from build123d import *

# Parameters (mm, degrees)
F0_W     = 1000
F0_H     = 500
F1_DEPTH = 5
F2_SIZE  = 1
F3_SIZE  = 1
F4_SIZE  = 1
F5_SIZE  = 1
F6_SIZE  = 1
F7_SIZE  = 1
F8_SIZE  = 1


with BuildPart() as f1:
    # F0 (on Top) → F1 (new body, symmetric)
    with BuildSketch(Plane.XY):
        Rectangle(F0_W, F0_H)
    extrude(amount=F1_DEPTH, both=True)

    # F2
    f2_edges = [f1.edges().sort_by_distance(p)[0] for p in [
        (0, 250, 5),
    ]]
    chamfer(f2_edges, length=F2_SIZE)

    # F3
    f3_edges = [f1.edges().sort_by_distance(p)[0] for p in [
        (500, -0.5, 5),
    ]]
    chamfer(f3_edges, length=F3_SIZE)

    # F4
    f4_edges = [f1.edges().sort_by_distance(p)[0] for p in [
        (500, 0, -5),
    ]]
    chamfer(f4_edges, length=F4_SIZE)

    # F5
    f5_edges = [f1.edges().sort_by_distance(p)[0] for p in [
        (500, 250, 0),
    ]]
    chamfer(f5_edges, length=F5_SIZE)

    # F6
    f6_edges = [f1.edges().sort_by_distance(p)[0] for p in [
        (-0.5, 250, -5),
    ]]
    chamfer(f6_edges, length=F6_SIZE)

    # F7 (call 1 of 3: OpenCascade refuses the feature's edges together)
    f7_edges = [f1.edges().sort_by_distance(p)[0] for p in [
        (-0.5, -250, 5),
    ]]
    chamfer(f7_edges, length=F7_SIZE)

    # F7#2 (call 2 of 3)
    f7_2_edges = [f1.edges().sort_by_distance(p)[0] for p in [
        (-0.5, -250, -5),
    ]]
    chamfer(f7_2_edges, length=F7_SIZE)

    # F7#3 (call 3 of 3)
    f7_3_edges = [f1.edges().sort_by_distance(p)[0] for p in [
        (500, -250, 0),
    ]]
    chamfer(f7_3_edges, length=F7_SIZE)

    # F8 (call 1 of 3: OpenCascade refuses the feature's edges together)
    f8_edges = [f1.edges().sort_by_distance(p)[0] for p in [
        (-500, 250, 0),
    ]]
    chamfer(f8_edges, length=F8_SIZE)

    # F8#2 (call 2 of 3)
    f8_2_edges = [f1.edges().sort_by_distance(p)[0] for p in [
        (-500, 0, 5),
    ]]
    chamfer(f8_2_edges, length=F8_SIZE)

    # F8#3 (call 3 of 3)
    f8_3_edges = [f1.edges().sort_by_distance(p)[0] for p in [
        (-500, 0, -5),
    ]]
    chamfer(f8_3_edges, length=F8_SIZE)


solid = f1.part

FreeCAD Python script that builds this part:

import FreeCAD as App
import Part
import Sketcher

V = App.Vector


def edges_at(feature, points):
    """Names of the edges that pass closest to the given points."""
    edges = feature.Shape.Edges
    near = lambda p: min(range(len(edges)), key=lambda i: edges[i].distToShape(Part.Vertex(*p))[0])
    return sorted({f"Edge{near(p) + 1}" for p in points})

doc = App.newDocument("Part")
body = doc.addObject("PartDesign::Body", "Body")

sketch1 = body.newObject("Sketcher::SketchObject", "Sketch")
sketch1.AttachmentSupport = (doc.getObject("XY_Plane"), [""])
sketch1.MapMode = "FlatFace"
sketch1.addGeometry([
    Part.LineSegment(V(-500, 250, 0), V(-500, -250, 0)),
    Part.LineSegment(V(-500, -250, 0), V(500, -250, 0)),
    Part.LineSegment(V(500, -250, 0), V(500, 250, 0)),
    Part.LineSegment(V(500, 250, 0), V(-500, 250, 0)),
], False)
sketch1.addConstraint([
    Sketcher.Constraint("Coincident", 0, 2, 1, 1),
    Sketcher.Constraint("Coincident", 1, 2, 2, 1),
    Sketcher.Constraint("Coincident", 2, 2, 3, 1),
    Sketcher.Constraint("Coincident", 3, 2, 0, 1),
    Sketcher.Constraint("Vertical", 0),
    Sketcher.Constraint("Horizontal", 1),
    Sketcher.Constraint("Vertical", 2),
    Sketcher.Constraint("Horizontal", 3),
    Sketcher.Constraint("Symmetric", 0, 2, 2, 2, -1, 1),
    Sketcher.Constraint("DistanceX", 1, 1, 1, 2, 1000.0),
    Sketcher.Constraint("DistanceY", 0, 2, 0, 1, 500.0),
])
pad1 = body.newObject("PartDesign::Pad", "Pad")
pad1.Profile = sketch1
pad1.Length = 10
pad1.Midplane = True
doc.recompute()

chamfer = body.newObject("PartDesign::Chamfer", "Chamfer")
chamfer.Base = (pad1, edges_at(pad1, [(0, 250, 5)]))
chamfer.Size = 1
doc.recompute()

chamfer2 = body.newObject("PartDesign::Chamfer", "Chamfer001")
chamfer2.Base = (chamfer, edges_at(chamfer, [(500, -0.5, 5)]))
chamfer2.Size = 1
doc.recompute()

chamfer3 = body.newObject("PartDesign::Chamfer", "Chamfer002")
chamfer3.Base = (chamfer2, edges_at(chamfer2, [(500, 0, -5)]))
chamfer3.Size = 1
doc.recompute()

chamfer4 = body.newObject("PartDesign::Chamfer", "Chamfer003")
chamfer4.Base = (chamfer3, edges_at(chamfer3, [(500, 250, 0)]))
chamfer4.Size = 1
doc.recompute()

chamfer5 = body.newObject("PartDesign::Chamfer", "Chamfer004")
chamfer5.Base = (chamfer4, edges_at(chamfer4, [(-0.5, 250, -5)]))
chamfer5.Size = 1
doc.recompute()

chamfer6 = body.newObject("PartDesign::Chamfer", "Chamfer005")
chamfer6.Base = (chamfer5, edges_at(chamfer5, [(-0.5, -250, 5)]))
chamfer6.Size = 1
doc.recompute()

chamfer7 = body.newObject("PartDesign::Chamfer", "Chamfer006")
chamfer7.Base = (chamfer6, edges_at(chamfer6, [(-0.5, -250, -5)]))
chamfer7.Size = 1
doc.recompute()

chamfer8 = body.newObject("PartDesign::Chamfer", "Chamfer007")
chamfer8.Base = (chamfer7, edges_at(chamfer7, [(500, -250, 0)]))
chamfer8.Size = 1
doc.recompute()

chamfer9 = body.newObject("PartDesign::Chamfer", "Chamfer008")
chamfer9.Base = (chamfer8, edges_at(chamfer8, [(-500, 250, 0)]))
chamfer9.Size = 1
doc.recompute()

chamfer10 = body.newObject("PartDesign::Chamfer", "Chamfer009")
chamfer10.Base = (chamfer9, edges_at(chamfer9, [(-500, 0, 5)]))
chamfer10.Size = 1
doc.recompute()

chamfer11 = body.newObject("PartDesign::Chamfer", "Chamfer010")
chamfer11.Base = (chamfer10, edges_at(chamfer10, [(-500, 0, -5)]))
chamfer11.Size = 1

doc.recompute()
